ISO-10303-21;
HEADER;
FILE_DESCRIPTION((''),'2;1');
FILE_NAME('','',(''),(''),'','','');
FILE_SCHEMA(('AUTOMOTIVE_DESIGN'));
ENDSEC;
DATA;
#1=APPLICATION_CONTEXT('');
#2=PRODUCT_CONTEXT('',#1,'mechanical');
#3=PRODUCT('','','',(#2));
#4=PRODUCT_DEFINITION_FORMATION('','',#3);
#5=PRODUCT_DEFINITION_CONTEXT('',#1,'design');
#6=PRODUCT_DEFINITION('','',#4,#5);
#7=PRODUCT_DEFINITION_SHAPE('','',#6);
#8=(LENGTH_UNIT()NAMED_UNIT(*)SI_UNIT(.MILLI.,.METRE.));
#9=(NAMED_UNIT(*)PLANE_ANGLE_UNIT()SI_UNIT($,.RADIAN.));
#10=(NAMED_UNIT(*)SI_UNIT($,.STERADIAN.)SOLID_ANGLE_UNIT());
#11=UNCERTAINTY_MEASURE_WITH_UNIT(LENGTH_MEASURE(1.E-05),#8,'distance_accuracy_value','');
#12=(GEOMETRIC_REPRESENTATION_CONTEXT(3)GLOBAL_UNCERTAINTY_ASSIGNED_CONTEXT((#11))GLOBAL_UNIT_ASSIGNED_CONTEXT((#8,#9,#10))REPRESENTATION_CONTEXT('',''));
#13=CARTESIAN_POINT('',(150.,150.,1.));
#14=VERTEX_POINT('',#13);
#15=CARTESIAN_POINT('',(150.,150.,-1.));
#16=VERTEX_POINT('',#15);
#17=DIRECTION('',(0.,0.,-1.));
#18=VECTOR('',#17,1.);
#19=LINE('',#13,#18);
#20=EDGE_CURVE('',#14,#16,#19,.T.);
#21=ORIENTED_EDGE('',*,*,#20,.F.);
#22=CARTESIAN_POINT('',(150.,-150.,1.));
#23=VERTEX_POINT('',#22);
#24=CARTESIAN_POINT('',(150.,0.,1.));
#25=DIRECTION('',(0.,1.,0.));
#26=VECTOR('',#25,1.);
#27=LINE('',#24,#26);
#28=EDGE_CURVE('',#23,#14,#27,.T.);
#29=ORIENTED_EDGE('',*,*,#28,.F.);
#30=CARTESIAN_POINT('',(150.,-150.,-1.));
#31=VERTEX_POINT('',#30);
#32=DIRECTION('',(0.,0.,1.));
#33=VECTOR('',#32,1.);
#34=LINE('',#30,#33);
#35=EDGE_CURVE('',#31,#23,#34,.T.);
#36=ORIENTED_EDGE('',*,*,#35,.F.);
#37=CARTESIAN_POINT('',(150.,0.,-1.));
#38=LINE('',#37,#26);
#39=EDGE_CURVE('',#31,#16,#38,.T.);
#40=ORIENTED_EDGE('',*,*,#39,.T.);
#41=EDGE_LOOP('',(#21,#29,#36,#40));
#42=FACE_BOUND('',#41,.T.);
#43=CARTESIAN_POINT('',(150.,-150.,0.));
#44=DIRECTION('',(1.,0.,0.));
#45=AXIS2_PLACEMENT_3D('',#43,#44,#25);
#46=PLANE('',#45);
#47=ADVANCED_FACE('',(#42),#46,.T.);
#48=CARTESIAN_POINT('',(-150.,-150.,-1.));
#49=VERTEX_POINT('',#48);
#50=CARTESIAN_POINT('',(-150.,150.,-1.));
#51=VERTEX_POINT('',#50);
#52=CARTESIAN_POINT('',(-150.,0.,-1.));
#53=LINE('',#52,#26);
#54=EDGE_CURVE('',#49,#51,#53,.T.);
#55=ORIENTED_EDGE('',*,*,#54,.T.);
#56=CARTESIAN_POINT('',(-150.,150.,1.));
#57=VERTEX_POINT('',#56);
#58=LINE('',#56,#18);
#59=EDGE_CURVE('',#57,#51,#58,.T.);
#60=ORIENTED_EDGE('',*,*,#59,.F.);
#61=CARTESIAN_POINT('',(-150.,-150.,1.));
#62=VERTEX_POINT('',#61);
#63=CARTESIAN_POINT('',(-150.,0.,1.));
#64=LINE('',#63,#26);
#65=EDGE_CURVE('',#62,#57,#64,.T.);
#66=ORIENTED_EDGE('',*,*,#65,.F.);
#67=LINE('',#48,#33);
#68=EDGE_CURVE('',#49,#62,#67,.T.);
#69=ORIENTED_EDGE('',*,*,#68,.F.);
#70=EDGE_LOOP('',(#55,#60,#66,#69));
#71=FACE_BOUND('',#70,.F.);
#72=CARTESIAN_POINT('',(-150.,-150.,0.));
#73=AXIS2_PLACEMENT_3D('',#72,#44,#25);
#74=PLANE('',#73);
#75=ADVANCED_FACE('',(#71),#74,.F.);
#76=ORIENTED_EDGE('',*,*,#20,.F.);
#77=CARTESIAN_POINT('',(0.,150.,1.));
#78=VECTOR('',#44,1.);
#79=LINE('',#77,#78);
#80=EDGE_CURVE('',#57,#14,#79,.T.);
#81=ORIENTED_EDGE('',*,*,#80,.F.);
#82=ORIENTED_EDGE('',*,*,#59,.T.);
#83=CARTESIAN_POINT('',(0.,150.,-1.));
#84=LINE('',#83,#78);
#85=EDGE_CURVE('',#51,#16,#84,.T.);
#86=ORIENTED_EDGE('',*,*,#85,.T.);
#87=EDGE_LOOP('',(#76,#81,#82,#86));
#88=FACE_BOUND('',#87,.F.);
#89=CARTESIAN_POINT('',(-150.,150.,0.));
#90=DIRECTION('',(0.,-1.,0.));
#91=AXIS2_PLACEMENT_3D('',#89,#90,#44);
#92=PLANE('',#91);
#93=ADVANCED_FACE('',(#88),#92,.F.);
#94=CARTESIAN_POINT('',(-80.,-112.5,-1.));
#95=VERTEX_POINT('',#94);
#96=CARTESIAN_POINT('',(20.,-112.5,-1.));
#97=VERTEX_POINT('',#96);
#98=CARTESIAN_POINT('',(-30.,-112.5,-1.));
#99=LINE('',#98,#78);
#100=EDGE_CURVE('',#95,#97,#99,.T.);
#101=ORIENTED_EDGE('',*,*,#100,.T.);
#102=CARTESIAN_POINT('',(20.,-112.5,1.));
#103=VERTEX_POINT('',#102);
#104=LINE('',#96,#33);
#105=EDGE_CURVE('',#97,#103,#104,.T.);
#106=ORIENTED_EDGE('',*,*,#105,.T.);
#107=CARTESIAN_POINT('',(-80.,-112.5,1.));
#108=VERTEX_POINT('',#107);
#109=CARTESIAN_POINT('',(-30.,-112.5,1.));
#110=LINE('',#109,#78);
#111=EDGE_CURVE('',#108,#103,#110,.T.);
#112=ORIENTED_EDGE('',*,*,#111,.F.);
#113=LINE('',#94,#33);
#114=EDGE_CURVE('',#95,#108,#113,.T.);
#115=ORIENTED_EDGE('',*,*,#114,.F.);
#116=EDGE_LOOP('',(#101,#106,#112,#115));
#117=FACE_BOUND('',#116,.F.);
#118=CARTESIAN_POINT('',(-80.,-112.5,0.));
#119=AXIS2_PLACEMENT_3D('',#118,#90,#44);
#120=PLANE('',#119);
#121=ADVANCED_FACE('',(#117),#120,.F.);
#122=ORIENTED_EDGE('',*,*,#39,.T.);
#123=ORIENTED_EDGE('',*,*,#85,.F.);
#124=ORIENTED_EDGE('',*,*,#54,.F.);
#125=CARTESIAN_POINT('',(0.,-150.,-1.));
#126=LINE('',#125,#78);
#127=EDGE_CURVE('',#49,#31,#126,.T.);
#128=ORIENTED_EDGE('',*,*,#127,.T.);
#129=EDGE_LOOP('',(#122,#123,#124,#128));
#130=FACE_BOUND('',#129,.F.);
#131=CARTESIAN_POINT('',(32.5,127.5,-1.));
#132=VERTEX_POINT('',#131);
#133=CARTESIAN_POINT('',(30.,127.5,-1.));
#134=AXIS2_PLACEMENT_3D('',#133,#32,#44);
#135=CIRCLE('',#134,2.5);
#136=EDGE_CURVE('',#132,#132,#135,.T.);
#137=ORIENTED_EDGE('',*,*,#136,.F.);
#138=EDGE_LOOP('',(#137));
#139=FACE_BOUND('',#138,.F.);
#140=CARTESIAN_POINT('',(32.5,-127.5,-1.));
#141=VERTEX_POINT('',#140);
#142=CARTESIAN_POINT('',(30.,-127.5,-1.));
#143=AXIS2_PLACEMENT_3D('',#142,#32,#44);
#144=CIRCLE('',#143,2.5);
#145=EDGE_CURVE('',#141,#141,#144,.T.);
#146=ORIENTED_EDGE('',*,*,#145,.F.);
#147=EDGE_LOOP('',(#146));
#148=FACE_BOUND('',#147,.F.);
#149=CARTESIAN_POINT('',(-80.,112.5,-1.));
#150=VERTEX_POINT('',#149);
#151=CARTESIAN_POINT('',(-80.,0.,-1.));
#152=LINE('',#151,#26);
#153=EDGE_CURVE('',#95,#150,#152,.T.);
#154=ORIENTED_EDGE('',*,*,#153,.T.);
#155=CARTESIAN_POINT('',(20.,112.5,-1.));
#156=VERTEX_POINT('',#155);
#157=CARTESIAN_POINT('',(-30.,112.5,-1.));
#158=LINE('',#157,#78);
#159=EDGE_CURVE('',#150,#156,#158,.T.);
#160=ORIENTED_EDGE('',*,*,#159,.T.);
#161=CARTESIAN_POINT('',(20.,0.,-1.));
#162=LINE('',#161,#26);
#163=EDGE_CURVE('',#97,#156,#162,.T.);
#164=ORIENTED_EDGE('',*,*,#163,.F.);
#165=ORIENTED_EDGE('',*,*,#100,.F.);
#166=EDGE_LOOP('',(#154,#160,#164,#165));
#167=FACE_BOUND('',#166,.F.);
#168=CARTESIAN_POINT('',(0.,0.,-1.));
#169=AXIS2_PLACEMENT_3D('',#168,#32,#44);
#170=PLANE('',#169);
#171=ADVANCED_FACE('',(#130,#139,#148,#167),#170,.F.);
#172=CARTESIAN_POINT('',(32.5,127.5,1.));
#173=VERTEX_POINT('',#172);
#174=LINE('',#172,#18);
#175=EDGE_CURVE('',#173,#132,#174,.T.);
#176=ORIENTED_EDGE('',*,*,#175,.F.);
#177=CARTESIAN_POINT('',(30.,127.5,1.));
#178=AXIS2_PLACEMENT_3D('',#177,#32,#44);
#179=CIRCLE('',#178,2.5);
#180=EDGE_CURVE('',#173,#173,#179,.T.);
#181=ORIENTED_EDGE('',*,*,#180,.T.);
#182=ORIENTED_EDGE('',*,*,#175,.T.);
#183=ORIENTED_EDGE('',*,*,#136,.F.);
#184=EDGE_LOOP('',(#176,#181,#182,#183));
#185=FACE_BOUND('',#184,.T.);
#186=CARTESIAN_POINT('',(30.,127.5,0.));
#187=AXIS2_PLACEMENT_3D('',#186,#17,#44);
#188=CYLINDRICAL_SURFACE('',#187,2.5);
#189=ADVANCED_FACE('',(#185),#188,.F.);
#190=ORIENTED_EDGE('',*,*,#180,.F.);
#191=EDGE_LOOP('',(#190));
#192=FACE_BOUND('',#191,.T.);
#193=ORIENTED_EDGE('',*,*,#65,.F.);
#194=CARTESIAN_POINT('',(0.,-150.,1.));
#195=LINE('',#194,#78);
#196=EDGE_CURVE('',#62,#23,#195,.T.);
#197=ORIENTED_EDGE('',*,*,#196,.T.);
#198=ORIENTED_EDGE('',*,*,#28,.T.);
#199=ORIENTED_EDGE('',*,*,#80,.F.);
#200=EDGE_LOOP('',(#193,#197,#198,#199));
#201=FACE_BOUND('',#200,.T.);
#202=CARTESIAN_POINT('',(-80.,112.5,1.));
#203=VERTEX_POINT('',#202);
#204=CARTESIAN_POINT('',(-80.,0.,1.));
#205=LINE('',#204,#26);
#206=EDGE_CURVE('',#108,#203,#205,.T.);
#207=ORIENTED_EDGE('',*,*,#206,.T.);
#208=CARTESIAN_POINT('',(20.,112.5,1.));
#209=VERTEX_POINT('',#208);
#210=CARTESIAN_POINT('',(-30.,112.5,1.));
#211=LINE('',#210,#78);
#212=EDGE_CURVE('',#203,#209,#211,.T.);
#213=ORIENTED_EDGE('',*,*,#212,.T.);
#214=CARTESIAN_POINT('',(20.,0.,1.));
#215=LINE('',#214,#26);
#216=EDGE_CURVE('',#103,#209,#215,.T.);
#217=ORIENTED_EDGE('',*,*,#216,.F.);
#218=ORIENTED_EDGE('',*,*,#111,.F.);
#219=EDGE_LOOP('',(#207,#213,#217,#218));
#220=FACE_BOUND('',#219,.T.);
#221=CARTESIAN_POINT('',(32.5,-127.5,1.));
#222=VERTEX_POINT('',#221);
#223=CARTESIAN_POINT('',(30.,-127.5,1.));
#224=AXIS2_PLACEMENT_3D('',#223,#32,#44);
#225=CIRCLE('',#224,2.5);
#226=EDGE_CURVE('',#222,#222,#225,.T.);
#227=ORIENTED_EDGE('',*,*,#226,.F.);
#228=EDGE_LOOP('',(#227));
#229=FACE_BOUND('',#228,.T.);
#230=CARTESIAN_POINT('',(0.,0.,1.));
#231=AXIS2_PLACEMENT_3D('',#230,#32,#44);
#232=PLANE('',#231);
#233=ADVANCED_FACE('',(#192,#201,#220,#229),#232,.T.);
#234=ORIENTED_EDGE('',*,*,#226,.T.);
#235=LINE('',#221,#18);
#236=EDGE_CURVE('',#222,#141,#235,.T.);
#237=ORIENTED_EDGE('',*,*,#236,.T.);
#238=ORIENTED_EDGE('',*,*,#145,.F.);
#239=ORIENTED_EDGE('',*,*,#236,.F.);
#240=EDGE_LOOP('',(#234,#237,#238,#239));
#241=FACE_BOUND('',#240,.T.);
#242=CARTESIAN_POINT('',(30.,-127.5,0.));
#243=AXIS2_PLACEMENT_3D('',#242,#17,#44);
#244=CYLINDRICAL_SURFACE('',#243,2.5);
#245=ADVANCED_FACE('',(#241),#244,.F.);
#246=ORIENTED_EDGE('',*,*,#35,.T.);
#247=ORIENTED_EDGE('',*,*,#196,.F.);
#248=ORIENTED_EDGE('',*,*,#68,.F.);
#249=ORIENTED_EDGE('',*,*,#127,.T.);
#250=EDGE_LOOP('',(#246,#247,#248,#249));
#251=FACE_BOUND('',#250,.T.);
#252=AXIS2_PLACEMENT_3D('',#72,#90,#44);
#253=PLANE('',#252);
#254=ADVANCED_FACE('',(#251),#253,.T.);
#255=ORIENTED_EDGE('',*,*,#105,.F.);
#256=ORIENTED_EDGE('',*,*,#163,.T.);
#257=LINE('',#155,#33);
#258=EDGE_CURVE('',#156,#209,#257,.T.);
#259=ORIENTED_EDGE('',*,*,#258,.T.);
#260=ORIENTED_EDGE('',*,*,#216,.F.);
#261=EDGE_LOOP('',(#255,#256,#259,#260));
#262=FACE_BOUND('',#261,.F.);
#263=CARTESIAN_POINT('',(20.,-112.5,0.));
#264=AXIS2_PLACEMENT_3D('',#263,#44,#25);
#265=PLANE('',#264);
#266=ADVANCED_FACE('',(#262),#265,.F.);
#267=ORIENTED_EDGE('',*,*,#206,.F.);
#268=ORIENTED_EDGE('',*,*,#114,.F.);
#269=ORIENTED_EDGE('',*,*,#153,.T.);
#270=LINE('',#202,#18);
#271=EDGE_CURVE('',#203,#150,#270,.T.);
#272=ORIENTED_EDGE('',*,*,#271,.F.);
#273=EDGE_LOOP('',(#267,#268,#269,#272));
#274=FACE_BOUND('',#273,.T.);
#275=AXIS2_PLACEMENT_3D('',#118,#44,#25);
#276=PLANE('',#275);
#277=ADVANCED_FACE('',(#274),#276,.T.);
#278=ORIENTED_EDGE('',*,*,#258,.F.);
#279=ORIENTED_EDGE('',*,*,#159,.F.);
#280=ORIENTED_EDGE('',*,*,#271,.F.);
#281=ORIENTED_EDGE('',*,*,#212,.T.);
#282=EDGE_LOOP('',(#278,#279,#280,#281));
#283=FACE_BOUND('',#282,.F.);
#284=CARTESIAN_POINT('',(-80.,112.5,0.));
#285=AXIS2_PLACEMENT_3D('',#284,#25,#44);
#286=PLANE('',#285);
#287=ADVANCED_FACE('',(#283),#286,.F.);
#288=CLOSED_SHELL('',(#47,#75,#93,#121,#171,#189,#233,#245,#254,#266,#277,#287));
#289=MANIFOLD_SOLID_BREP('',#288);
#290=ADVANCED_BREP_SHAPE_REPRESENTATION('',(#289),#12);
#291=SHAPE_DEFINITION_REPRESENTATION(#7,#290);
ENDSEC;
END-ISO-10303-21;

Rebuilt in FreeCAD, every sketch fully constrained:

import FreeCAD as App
import Part
import Sketcher
from FreeCAD import Vector
Q = App.Units.Quantity

doc = App.newDocument("Part")
body = doc.addObject("PartDesign::Body", "Body")

# Sketch on XY plane
sketch1 = doc.addObject("Sketcher::SketchObject", "Sketch")
body.addObject(sketch1)
sketch1.AttachmentSupport = (doc.XY_Plane, [""])
sketch1.MapMode = "FlatFace"
sketch1.addGeometry([
    Part.LineSegment(Vector(-150, 150, 0), Vector(-150, -150, 0)),  # 0
    Part.LineSegment(Vector(-150, -150, 0), Vector(150, -150, 0)),  # 1
    Part.LineSegment(Vector(150, -150, 0), Vector(150, 150, 0)),  # 2
    Part.LineSegment(Vector(150, 150, 0), Vector(-150, 150, 0)),  # 3
    Part.Circle(Vector(30, -127.5, 0), Vector(0, 0, 1), 2.5),  # 4
    Part.LineSegment(Vector(20, -112.5, 0), Vector(-80, -112.5, 0)),  # 5
    Part.LineSegment(Vector(-80, -112.5, 0), Vector(-80, 112.5, 0)),  # 6
    Part.LineSegment(Vector(-80, 112.5, 0), Vector(20, 112.5, 0)),  # 7
    Part.LineSegment(Vector(20, 112.5, 0), Vector(20, -112.5, 0)),  # 8
    Part.Circle(Vector(30, 127.5, 0), Vector(0, 0, 1), 2.5),  # 9
], False)
sketch1.addConstraint([
    Sketcher.Constraint("Coincident", 0, 2, 1, 1),
    Sketcher.Constraint("Coincident", 1, 2, 2, 1),
    Sketcher.Constraint("Coincident", 2, 2, 3, 1),
    Sketcher.Constraint("Coincident", 3, 2, 0, 1),
    Sketcher.Constraint("Coincident", 5, 2, 6, 1),
    Sketcher.Constraint("Coincident", 6, 2, 7, 1),
    Sketcher.Constraint("Coincident", 7, 2, 8, 1),
    Sketcher.Constraint("Coincident", 8, 2, 5, 1),
    Sketcher.Constraint("Vertical", 0),
    Sketcher.Constraint("Horizontal", 1),
    Sketcher.Constraint("Vertical", 2),
    Sketcher.Constraint("Horizontal", 3),
    Sketcher.Constraint("Horizontal", 5),
    Sketcher.Constraint("Vertical", 6),
    Sketcher.Constraint("Horizontal", 7),
    Sketcher.Constraint("Vertical", 8),
    Sketcher.Constraint("Equal", 4, 9),
    Sketcher.Constraint("Symmetric", 0, 2, 2, 2, -1, 1),
    Sketcher.Constraint("Symmetric", 4, 3, 9, 3, -1),
    Sketcher.Constraint("Equal", 3, 0),
    Sketcher.Constraint("Diameter", 4, Q("5 mm")),
    Sketcher.Constraint("DistanceX", 1, 1, 1, 2, Q("300 mm")),
    Sketcher.Constraint("DistanceX", 5, 2, 5, 1, Q("100 mm")),
    Sketcher.Constraint("DistanceY", 6, 1, 6, 2, Q("225 mm")),
    Sketcher.Constraint("DistanceX", -1, 1, 4, 3, Q("30 mm")),
    Sketcher.Constraint("DistanceX", 5, 2, -1, 1, Q("80 mm")),
    Sketcher.Constraint("DistanceY", 4, 3, 9, 3, Q("255 mm")),
    Sketcher.Constraint("DistanceY", 4, 3, 5, 2, Q("15 mm")),
])
pad1 = doc.addObject("PartDesign::Pad", "Pad")
body.addObject(pad1)
pad1.Profile = sketch1
pad1.Length = 2
pad1.Midplane = True

doc.recompute()
